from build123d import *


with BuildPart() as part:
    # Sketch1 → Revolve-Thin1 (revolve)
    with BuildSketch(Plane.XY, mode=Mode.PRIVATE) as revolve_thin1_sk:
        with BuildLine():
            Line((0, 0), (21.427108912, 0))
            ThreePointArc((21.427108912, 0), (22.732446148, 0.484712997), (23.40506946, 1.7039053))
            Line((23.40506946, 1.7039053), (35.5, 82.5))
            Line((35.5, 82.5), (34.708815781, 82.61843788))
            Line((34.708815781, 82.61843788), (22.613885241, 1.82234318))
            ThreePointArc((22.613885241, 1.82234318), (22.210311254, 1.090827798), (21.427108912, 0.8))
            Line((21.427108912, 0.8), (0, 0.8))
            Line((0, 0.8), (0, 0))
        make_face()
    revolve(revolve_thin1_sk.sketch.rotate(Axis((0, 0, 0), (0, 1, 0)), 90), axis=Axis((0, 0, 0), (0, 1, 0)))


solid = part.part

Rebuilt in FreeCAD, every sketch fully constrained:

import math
import FreeCAD as App
import Part
import Sketcher
Q = App.Units.Quantity

doc = App.newDocument("Part")
body = doc.addObject("PartDesign::Body", "Body")

# Sketch on XY plane
sketch1 = body.newObject("Sketcher::SketchObject", "Sketch")
sketch1.AttachmentSupport = (doc.getObject("XY_Plane"), [""])
sketch1.MapMode = "FlatFace"
sketch1.addGeometry([
    Part.LineSegment(App.Vector(0, 0, 0), App.Vector(21.427109, 0, 0)),  # 0
    Part.ArcOfCircle(Part.Circle(App.Vector(21.427109, 2, 0), App.Vector(0, 0, 1), 2), math.radians(-90), math.radians(-8.513785)),  # 1
    Part.LineSegment(App.Vector(23.405069, 1.703905, 0), App.Vector(35.5, 82.5, 0)),  # 2
    Part.LineSegment(App.Vector(35.5, 82.5, 0), App.Vector(34.708816, 82.618438, 0)),  # 3
    Part.LineSegment(App.Vector(34.708816, 82.618438, 0), App.Vector(22.613885, 1.822343, 0)),  # 4
    Part.ArcOfCircle(Part.Circle(App.Vector(21.427109, 2, 0), App.Vector(0, 0, 1), 1.2), math.radians(-90), math.radians(-8.513785)),  # 5
    Part.LineSegment(App.Vector(21.427109, 0.8, 0), App.Vector(0, 0.8, 0)),  # 6
    Part.LineSegment(App.Vector(0, 0.8, 0), App.Vector(0, 0, 0)),  # 7
], False)
sketch1.addConstraint([
    Sketcher.Constraint("Tangent", 0, 2, 1, 1),
    Sketcher.Constraint("Tangent", 1, 2, 2, 1),
    Sketcher.Constraint("Coincident", 2, 2, 3, 1),
    Sketcher.Constraint("Coincident", 3, 2, 4, 1),
    Sketcher.Constraint("Tangent", 4, 2, 5, 2),
    Sketcher.Constraint("Tangent", 5, 1, 6, 1),
    Sketcher.Constraint("Coincident", 6, 2, 7, 1),
    Sketcher.Constraint("Coincident", 7, 2, 0, 1),
    Sketcher.Constraint("Horizontal", 0),
    Sketcher.Constraint("Horizontal", 6),
    Sketcher.Constraint("Vertical", 7),
    Sketcher.Constraint("Coincident", 7, 2, -1, 1),
    Sketcher.Constraint("Coincident", 5, 3, 1, 3),
    Sketcher.Constraint("Perpendicular", 2, 3),
    Sketcher.Constraint("Perpendicular", 3, 4),
    Sketcher.Constraint("Radius", 1, Q("2 mm")),
    Sketcher.Constraint("Radius", 5, Q("1.2 mm")),
    Sketcher.Constraint("DistanceX", -1, 1, 2, 2, Q("35.5 mm")),
    Sketcher.Constraint("DistanceY", -1, 1, 2, 2, Q("82.5 mm")),
    Sketcher.Constraint("DistanceX", 0, 1, 0, 2, Q("21.427109 mm")),
])
revolution = body.newObject("PartDesign::Revolution", "Revolution")
revolution.Profile = sketch1
revolution.ReferenceAxis = (sketch1, ["V_Axis"])
revolution.Angle = 360

doc.recompute()
